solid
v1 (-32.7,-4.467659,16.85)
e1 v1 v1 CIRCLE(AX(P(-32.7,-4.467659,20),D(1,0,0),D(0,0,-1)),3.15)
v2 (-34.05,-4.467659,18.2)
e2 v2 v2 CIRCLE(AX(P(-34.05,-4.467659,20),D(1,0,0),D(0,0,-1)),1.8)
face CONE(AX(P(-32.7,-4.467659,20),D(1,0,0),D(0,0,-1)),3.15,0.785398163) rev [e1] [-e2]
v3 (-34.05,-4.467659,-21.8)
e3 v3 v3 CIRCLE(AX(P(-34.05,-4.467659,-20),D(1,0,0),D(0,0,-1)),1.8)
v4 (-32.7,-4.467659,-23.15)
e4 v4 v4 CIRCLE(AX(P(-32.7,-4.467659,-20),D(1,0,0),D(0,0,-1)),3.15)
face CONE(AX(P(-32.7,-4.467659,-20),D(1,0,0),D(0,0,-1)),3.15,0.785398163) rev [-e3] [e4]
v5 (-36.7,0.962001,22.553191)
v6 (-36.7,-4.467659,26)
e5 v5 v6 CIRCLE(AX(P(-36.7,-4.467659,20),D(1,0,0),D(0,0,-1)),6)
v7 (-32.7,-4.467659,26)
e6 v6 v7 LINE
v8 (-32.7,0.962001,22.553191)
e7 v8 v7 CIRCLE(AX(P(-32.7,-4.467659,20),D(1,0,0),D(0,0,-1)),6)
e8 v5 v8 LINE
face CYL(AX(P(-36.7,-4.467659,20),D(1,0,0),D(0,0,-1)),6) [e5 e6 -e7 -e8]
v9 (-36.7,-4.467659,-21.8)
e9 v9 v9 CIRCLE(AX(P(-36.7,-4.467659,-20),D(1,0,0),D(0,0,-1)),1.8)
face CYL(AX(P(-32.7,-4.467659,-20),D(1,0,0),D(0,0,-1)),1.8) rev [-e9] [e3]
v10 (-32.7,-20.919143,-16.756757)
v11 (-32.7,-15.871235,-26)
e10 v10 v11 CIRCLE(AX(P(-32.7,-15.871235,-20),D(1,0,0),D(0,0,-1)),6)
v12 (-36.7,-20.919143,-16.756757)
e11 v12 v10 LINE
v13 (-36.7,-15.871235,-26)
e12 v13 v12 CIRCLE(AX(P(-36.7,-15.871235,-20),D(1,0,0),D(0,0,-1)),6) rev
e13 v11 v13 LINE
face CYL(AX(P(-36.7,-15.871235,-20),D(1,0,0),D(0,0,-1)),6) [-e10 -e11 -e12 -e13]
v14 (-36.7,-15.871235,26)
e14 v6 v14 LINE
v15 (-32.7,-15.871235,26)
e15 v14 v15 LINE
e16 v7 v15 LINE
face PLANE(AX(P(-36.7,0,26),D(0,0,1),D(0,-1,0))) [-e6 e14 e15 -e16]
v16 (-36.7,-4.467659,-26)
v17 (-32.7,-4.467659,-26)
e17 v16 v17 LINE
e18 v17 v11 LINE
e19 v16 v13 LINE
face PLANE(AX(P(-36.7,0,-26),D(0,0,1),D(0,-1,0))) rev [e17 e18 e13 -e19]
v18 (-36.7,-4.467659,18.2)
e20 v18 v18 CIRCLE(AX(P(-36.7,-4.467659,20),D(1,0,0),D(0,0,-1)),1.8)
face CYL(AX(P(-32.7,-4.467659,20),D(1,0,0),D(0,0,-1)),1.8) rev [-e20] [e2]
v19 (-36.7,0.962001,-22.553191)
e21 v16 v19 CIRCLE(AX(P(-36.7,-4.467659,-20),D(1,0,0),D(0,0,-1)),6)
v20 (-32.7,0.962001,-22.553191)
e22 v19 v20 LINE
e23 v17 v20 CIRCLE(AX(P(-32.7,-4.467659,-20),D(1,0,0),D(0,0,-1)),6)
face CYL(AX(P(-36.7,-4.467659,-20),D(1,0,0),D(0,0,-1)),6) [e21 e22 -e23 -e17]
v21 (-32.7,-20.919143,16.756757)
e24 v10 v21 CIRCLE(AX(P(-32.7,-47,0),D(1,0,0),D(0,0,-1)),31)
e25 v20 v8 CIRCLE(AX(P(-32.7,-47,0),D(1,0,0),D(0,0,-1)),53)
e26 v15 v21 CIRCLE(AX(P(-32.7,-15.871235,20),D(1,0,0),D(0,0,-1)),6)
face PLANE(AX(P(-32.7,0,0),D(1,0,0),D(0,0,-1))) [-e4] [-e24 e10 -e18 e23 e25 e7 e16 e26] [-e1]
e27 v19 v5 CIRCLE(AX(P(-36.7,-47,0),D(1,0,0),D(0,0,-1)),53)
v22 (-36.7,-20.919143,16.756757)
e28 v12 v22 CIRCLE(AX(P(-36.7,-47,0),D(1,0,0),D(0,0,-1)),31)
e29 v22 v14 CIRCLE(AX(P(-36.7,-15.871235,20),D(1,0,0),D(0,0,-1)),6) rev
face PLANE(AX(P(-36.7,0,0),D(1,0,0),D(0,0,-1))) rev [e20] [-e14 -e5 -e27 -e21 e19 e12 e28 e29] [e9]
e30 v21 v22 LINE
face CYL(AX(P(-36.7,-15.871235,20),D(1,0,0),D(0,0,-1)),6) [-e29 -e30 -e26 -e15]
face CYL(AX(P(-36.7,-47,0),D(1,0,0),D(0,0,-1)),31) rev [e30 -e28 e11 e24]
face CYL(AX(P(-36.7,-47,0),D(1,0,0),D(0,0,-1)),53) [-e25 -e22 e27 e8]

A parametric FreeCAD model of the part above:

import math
import FreeCAD as App
import Part
import Sketcher

V = App.Vector


def edges_at(feature, points):
    """Names of the edges that pass closest to the given points."""
    edges = feature.Shape.Edges
    near = lambda p: min(range(len(edges)), key=lambda i: edges[i].distToShape(Part.Vertex(*p))[0])
    return sorted({f"Edge{near(p) + 1}" for p in points})

doc = App.newDocument("Part")
body = doc.addObject("PartDesign::Body", "Body")

sketch1 = body.newObject("Sketcher::SketchObject", "Sketch")
sketch1.AttachmentSupport = (doc.getObject("YZ_Plane"), [""])
sketch1.MapMode = "FlatFace"
sketch1.AttachmentOffset = App.Placement(V(0, 0, -32.7), App.Rotation())
sketch1.addGeometry([
    Part.LineSegment(V(-30, -26, 0), V(-4, -26, 0)),
    Part.ArcOfCircle(Part.Circle(V(-4, -20, 0), V(0, 0, 1), 6), math.radians(-90), math.radians(-25)),
    Part.ArcOfCircle(Part.Circle(V(-47, 0, 0), V(0, 0, 1), 53), math.radians(-25), math.radians(25)),
    Part.ArcOfCircle(Part.Circle(V(-4, 20, 0), V(0, 0, 1), 6), math.radians(25), math.radians(90)),
    Part.LineSegment(V(-4, 26, 0), V(-30, 26, 0)),
    Part.ArcOfCircle(Part.Circle(V(-47, 0, 0), V(0, 0, 1), 31), math.radians(-57), math.radians(57)),
], False)
sketch1.addConstraint([
    Sketcher.Constraint("Tangent", 0, 2, 1, 1),
    Sketcher.Constraint("Tangent", 1, 2, 2, 1),
    Sketcher.Constraint("Tangent", 2, 2, 3, 1),
    Sketcher.Constraint("Tangent", 3, 2, 4, 1),
    Sketcher.Constraint("Coincident", 4, 2, 5, 2),
    Sketcher.Constraint("Coincident", 5, 1, 0, 1),
    Sketcher.Constraint("Horizontal", 0),
    Sketcher.Constraint("Horizontal", 4),
    Sketcher.Constraint("Coincident", 5, 3, 2, 3),
    Sketcher.Constraint("Equal", 1, 3),
    Sketcher.Constraint("Symmetric", 1, 3, 3, 3, -1),
    Sketcher.Constraint("Radius", 1, 6.0),
    Sketcher.Constraint("Radius", 2, 53.0),
    Sketcher.Constraint("Radius", 5, 31.0),
    Sketcher.Constraint("DistanceY", 1, 3, -1, 1, 20.0),
    Sketcher.Constraint("DistanceX", 2, 3, -1, 1, 47.0),
])
pad1 = body.newObject("PartDesign::Pad", "Pad")
pad1.Profile = sketch1
pad1.Length = 4
pad1.Reversed = True
doc.recompute()

fillet = body.newObject("PartDesign::Fillet", "Fillet")
fillet.Base = (pad1, edges_at(pad1, [(-34.7, -30.118, -26), (-34.7, -30.118, 26)]))
fillet.Radius = 6

sketch2 = body.newObject("Sketcher::SketchObject", "Sketch001")
sketch2.AttachmentSupport = (doc.getObject("YZ_Plane"), [""])
sketch2.MapMode = "FlatFace"
sketch2.AttachmentOffset = App.Placement(V(0, 0, -32.7), App.Rotation())
sketch2.addGeometry([
    Part.Circle(V(-4.5, 20, 0), V(0, 0, 1), 1.8),
    Part.Circle(V(-4.5, -20, 0), V(0, 0, 1), 1.8),
], False)
sketch2.addConstraint([
    Sketcher.Constraint("Equal", 0, 1),
    Sketcher.Constraint("Symmetric", 0, 3, 1, 3, -1),
    Sketcher.Constraint("Diameter", 0, 3.6),
    Sketcher.Constraint("DistanceY", -1, 1, 0, 3, 20.0),
    Sketcher.Constraint("DistanceX", 0, 3, -1, 1, 4.467659),
])
doc.recompute()
hole = body.newObject("PartDesign::Hole", "Hole")
hole.Profile = sketch2
hole.ThreadType = "None"
hole.Diameter = 3.6
hole.DepthType = "ThroughAll"
hole.HoleCutType = "Countersink"
hole.HoleCutDiameter = 6.3
hole.HoleCutCountersinkAngle = 90

doc.recompute()
